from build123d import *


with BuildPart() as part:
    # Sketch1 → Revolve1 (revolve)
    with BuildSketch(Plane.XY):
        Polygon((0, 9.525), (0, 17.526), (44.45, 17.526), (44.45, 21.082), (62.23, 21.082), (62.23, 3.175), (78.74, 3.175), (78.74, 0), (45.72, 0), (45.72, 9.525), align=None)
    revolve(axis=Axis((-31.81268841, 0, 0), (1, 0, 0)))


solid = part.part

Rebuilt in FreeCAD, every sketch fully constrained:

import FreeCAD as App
import Part
import Sketcher

V = App.Vector
Q = App.Units.Quantity

doc = App.newDocument("Part")
params = doc.addObject("Spreadsheet::Sheet", "Params")
for row, (alias, value) in enumerate([
    ("sketch1_width", "1.8 in"),
    ("sketch1_width2", "1.3 in"),
    ("sketch1_width3", "0.7 in"),
    ("sketch1_width4", "0.65 in"),
    ("sketch1_height", "0.14 in"),
    ("revolution_angle", "360 deg"),
], start=1):
    params.set(f"A{row}", alias)
    params.set(f"B{row}", "=" + value)
    params.setAlias(f"B{row}", alias)

body = doc.addObject("PartDesign::Body", "Body")

# Sketch on XY plane
sketch1 = doc.addObject("Sketcher::SketchObject", "Sketch")
body.addObject(sketch1)
sketch1.AttachmentSupport = (doc.XY_Plane, [""])
sketch1.MapMode = "FlatFace"
sketch1.addGeometry([
    Part.LineSegment(V(0, 17.5, 0), V(0, 9.5, 0)),  # 0
    Part.LineSegment(V(0, 9.5, 0), V(45.7, 9.5, 0)),  # 1
    Part.LineSegment(V(45.7, 9.5, 0), V(45.7, 0, 0)),  # 2
    Part.LineSegment(V(45.7, 0, 0), V(78.7, 0, 0)),  # 3
    Part.LineSegment(V(78.7, 0, 0), V(78.7, 3.2, 0)),  # 4
    Part.LineSegment(V(78.7, 3.2, 0), V(62.2, 3.2, 0)),  # 5
    Part.LineSegment(V(62.2, 3.2, 0), V(62.2, 21.1, 0)),  # 6
    Part.LineSegment(V(62.2, 21.1, 0), V(44.5, 21.1, 0)),  # 7
    Part.LineSegment(V(44.5, 21.1, 0), V(44.5, 17.5, 0)),  # 8
    Part.LineSegment(V(44.5, 17.5, 0), V(0, 17.5, 0)),  # 9
], False)
sketch1.addConstraint([
    Sketcher.Constraint("Coincident", 0, 2, 1, 1),
    Sketcher.Constraint("Coincident", 1, 2, 2, 1),
    Sketcher.Constraint("Coincident", 2, 2, 3, 1),
    Sketcher.Constraint("Coincident", 3, 2, 4, 1),
    Sketcher.Constraint("Coincident", 4, 2, 5, 1),
    Sketcher.Constraint("Coincident", 5, 2, 6, 1),
    Sketcher.Constraint("Coincident", 6, 2, 7, 1),
    Sketcher.Constraint("Coincident", 7, 2, 8, 1),
    Sketcher.Constraint("Coincident", 8, 2, 9, 1),
    Sketcher.Constraint("Coincident", 9, 2, 0, 1),
    Sketcher.Constraint("Vertical", 0),
    Sketcher.Constraint("Horizontal", 1),
    Sketcher.Constraint("Vertical", 2),
    Sketcher.Constraint("Horizontal", 3),
    Sketcher.Constraint("Vertical", 4),
    Sketcher.Constraint("Horizontal", 5),
    Sketcher.Constraint("Vertical", 6),
    Sketcher.Constraint("Horizontal", 7),
    Sketcher.Constraint("Vertical", 8),
    Sketcher.Constraint("Horizontal", 9),
    Sketcher.Constraint("PointOnObject", 0, 2, -2),
    Sketcher.Constraint("PointOnObject", 2, 2, -1),
    Sketcher.Constraint("DistanceX", 1, 1, 1, 2, Q("1.8 in")),
    Sketcher.Constraint("DistanceX", 3, 1, 3, 2, Q("1.3 in")),
    Sketcher.Constraint("DistanceX", 7, 2, 7, 1, Q("0.7 in")),
    Sketcher.Constraint("DistanceX", 5, 2, 5, 1, Q("0.65 in")),
    Sketcher.Constraint("DistanceY", 8, 2, 8, 1, Q("0.14 in")),
    Sketcher.Constraint("DistanceY", 0, 2, 0, 1, Q("0.315 in")),
    Sketcher.Constraint("DistanceY", 2, 2, 2, 1, Q("0.375 in")),
    Sketcher.Constraint("DistanceY", 4, 1, 4, 2, Q("0.125 in")),
])
sketch1.setExpression("Constraints[22]", "Params.sketch1_width")
sketch1.setExpression("Constraints[23]", "Params.sketch1_width2")
sketch1.setExpression("Constraints[24]", "Params.sketch1_width3")
sketch1.setExpression("Constraints[25]", "Params.sketch1_width4")
sketch1.setExpression("Constraints[26]", "Params.sketch1_height")
revolution = doc.addObject("PartDesign::Revolution", "Revolution")
body.addObject(revolution)
revolution.Profile = sketch1
revolution.ReferenceAxis = (sketch1, ["H_Axis"])
revolution.setExpression("Angle", "Params.revolution_angle")

doc.recompute()
